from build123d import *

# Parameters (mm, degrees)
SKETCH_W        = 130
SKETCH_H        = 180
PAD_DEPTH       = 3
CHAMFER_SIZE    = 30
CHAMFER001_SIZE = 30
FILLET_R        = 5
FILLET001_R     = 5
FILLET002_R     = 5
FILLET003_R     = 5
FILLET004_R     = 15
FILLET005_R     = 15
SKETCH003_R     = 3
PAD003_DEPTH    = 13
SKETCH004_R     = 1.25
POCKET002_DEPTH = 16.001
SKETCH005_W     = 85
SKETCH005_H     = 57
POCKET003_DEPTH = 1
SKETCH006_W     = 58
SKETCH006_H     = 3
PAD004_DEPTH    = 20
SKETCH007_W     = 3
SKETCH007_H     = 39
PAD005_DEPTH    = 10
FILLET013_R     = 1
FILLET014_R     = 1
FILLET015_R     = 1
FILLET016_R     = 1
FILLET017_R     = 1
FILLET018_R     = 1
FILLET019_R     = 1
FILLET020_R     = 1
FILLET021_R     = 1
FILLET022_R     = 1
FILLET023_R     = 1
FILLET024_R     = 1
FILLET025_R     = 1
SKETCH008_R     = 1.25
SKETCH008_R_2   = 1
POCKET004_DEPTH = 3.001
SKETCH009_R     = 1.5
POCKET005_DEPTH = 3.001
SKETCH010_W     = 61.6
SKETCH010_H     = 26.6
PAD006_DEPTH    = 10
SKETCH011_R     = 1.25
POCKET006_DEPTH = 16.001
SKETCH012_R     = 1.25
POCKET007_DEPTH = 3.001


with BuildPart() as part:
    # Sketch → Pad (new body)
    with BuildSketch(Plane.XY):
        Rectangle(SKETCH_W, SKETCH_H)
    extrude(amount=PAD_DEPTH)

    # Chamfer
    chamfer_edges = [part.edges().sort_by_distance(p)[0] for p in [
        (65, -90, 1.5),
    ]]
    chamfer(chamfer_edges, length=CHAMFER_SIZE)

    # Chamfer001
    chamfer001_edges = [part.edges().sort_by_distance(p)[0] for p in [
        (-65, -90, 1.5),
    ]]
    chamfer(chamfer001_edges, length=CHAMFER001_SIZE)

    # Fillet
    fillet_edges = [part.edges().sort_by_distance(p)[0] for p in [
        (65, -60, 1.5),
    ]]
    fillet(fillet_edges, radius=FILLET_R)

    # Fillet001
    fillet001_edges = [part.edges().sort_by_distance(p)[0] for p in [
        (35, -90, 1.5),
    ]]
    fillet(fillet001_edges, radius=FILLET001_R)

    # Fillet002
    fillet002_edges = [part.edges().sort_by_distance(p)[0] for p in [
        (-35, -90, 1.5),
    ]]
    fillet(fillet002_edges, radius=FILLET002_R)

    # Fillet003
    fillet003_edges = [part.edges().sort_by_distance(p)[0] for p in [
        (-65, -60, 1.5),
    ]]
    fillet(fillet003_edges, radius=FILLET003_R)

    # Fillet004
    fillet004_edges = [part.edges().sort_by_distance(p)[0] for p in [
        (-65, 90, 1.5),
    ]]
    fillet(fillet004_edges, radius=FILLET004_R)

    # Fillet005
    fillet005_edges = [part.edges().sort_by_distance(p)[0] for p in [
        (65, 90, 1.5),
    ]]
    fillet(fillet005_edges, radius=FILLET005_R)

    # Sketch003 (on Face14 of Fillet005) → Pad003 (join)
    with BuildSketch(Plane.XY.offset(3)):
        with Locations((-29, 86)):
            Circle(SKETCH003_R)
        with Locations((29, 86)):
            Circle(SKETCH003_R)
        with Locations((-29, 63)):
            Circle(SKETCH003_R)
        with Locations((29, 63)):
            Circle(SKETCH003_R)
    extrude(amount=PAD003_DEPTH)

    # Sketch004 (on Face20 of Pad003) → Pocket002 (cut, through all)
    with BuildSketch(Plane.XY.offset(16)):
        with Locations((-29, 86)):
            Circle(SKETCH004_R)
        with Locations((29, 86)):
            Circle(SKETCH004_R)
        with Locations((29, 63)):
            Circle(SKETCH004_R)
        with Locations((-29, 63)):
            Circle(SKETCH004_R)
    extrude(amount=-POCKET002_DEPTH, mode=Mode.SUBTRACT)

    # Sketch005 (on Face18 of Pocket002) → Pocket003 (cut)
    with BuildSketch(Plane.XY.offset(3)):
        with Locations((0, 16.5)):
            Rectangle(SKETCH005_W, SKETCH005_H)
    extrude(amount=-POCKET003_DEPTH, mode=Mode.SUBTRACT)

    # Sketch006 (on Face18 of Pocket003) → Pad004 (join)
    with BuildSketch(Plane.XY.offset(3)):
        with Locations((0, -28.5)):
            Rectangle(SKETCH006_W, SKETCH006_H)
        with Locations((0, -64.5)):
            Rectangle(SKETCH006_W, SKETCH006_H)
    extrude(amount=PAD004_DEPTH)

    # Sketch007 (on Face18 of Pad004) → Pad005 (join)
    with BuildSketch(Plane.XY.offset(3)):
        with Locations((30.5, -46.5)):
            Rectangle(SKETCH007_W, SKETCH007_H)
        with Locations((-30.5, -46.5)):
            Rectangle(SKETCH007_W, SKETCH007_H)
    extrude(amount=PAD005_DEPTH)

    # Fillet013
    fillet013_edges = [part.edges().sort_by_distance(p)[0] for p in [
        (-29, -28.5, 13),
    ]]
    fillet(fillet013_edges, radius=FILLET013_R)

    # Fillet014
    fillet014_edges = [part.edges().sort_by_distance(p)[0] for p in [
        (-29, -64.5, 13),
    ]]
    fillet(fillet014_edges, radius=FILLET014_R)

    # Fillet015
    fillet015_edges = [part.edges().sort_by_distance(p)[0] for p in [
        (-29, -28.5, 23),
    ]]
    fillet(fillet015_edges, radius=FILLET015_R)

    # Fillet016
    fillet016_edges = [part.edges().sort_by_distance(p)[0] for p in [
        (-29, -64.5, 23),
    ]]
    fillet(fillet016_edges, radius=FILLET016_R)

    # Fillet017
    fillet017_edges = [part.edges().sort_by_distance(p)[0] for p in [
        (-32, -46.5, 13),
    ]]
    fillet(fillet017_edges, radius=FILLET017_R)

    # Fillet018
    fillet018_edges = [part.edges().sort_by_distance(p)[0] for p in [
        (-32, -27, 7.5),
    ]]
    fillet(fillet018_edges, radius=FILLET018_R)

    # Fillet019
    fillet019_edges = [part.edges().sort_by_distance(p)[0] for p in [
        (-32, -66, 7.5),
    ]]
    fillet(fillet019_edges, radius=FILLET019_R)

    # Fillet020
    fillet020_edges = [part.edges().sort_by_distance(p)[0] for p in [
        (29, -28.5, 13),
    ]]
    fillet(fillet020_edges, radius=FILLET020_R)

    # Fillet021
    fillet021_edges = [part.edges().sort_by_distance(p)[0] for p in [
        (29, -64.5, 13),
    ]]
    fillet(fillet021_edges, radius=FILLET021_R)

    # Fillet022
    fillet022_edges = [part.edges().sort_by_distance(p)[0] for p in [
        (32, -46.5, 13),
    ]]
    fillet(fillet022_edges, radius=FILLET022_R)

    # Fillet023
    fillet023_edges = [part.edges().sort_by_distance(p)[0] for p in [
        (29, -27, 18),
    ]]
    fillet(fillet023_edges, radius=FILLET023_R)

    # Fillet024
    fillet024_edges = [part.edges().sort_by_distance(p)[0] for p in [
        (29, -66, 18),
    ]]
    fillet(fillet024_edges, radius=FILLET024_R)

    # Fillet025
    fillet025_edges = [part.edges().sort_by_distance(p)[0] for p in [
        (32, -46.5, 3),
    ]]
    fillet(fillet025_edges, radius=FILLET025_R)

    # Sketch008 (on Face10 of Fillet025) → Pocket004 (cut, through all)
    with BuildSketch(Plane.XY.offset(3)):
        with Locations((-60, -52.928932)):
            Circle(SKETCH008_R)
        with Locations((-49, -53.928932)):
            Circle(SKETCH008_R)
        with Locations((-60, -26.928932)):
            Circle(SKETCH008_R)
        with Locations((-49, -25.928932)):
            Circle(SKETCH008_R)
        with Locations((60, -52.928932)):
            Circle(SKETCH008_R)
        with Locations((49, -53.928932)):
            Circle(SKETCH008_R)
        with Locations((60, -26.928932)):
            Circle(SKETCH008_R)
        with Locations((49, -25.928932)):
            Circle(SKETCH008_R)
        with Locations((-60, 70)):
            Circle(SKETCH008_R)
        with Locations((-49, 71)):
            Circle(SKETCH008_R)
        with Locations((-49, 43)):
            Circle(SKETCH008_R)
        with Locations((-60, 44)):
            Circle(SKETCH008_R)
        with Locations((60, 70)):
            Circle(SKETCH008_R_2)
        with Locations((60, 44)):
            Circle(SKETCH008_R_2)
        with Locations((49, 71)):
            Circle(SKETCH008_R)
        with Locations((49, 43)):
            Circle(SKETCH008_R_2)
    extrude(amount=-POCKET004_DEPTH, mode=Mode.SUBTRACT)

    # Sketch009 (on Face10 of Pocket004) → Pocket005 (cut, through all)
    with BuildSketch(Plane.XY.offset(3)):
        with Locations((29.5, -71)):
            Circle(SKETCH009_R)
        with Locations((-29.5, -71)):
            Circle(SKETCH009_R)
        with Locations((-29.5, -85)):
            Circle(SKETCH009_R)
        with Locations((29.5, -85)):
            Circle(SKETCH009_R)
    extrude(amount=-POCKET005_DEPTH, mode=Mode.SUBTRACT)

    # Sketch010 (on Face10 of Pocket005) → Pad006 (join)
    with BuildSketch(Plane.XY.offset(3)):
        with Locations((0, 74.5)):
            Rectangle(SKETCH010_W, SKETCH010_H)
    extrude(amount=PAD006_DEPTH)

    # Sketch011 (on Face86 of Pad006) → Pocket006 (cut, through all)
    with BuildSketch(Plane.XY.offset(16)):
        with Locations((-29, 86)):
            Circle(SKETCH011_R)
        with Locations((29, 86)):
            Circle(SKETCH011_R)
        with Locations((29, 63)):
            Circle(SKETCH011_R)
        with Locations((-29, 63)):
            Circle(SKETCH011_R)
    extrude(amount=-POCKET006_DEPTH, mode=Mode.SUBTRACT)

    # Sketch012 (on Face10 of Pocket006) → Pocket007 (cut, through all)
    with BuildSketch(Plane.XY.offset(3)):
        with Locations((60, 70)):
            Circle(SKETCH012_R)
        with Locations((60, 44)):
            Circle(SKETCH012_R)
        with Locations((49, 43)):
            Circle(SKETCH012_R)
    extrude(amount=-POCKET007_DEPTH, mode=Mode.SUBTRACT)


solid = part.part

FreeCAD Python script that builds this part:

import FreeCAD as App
import Part
import Sketcher

V = App.Vector


def edges_at(feature, points):
    """Names of the edges that pass closest to the given points."""
    edges = feature.Shape.Edges
    near = lambda p: min(range(len(edges)), key=lambda i: edges[i].distToShape(Part.Vertex(*p))[0])
    return sorted({f"Edge{near(p) + 1}" for p in points})


def add_polygon(sketch, points):
    """Adds a closed chain of lines whose ends are joined by coincident constraints."""
    first, n = sketch.GeometryCount, len(points)
    for a, b in zip(points, points[1:] + points[:1]):
        sketch.addGeometry(Part.LineSegment(App.Vector(*a, 0), App.Vector(*b, 0)), False)
    for i in range(n):
        sketch.addConstraint(Sketcher.Constraint("Coincident", first + i, 2, first + (i + 1) % n, 1))

doc = App.newDocument("Part")
body = doc.addObject("PartDesign::Body", "Body")

# Sketch on XY plane
sketch1 = body.newObject("Sketcher::SketchObject", "Sketch")
sketch1.AttachmentSupport = (doc.getObject("XY_Plane"), [""])
sketch1.MapMode = "FlatFace"
add_polygon(sketch1, [(-65, 90), (-65, -90), (65, -90), (65, 90)])  # lines 0-3
sketch1.addConstraint([
    Sketcher.Constraint("Vertical", 0),
    Sketcher.Constraint("Horizontal", 1),
    Sketcher.Constraint("Vertical", 2),
    Sketcher.Constraint("Horizontal", 3),
    Sketcher.Constraint("Symmetric", 0, 2, 2, 2, -1, 1),
    Sketcher.Constraint("DistanceX", 1, 1, 1, 2, 130.0),
    Sketcher.Constraint("DistanceY", 0, 2, 0, 1, 180.0),
])
pad1 = body.newObject("PartDesign::Pad", "Pad")
pad1.Profile = sketch1
pad1.Length = 3
doc.recompute()

chamfer = body.newObject("PartDesign::Chamfer", "Chamfer")
chamfer.Base = (pad1, edges_at(pad1, [(65, -90, 1.5)]))
chamfer.Size = 30
doc.recompute()

chamfer2 = body.newObject("PartDesign::Chamfer", "Chamfer001")
chamfer2.Base = (chamfer, edges_at(chamfer, [(-65, -90, 1.5)]))
chamfer2.Size = 30
doc.recompute()

fillet = body.newObject("PartDesign::Fillet", "Fillet")
fillet.Base = (chamfer2, edges_at(chamfer2, [(65, -60, 1.5)]))
fillet.Radius = 5
doc.recompute()

fillet2 = body.newObject("PartDesign::Fillet", "Fillet001")
fillet2.Base = (fillet, edges_at(fillet, [(35, -90, 1.5)]))
fillet2.Radius = 5
doc.recompute()

fillet3 = body.newObject("PartDesign::Fillet", "Fillet002")
fillet3.Base = (fillet2, edges_at(fillet2, [(-35, -90, 1.5)]))
fillet3.Radius = 5
doc.recompute()

fillet4 = body.newObject("PartDesign::Fillet", "Fillet003")
fillet4.Base = (fillet3, edges_at(fillet3, [(-65, -60, 1.5)]))
fillet4.Radius = 5
doc.recompute()

fillet5 = body.newObject("PartDesign::Fillet", "Fillet004")
fillet5.Base = (fillet4, edges_at(fillet4, [(-65, 90, 1.5)]))
fillet5.Radius = 15
doc.recompute()

fillet6 = body.newObject("PartDesign::Fillet", "Fillet005")
fillet6.Base = (fillet5, edges_at(fillet5, [(65, 90, 1.5)]))
fillet6.Radius = 15

# Sketch on XY plane
sketch2 = body.newObject("Sketcher::SketchObject", "Sketch001")
sketch2.AttachmentSupport = (doc.getObject("XY_Plane"), [""])
sketch2.MapMode = "FlatFace"
sketch2.AttachmentOffset = App.Placement(V(0, 0, 3), App.Rotation())
sketch2.addGeometry([
    Part.Circle(V(-29, 86, 0), V(0, 0, 1), 3),
    Part.Circle(V(29, 86, 0), V(0, 0, 1), 3),
    Part.Circle(V(-29, 63, 0), V(0, 0, 1), 3),
    Part.Circle(V(29, 63, 0), V(0, 0, 1), 3),
], False)
sketch2.addConstraint([
    Sketcher.Constraint("Equal", 0, 1),
    Sketcher.Constraint("Equal", 1, 2),
    Sketcher.Constraint("Equal", 2, 3),
    Sketcher.Constraint("Symmetric", 0, 3, 1, 3, -2),
    Sketcher.Constraint("Symmetric", 2, 3, 3, 3, -2),
    Sketcher.Constraint("Vertical", 0, 3, 2, 3),
    Sketcher.Constraint("Diameter", 0, 6.0),
    Sketcher.Constraint("DistanceX", 0, 3, -1, 1, 29.0),
    Sketcher.Constraint("DistanceY", -1, 1, 0, 3, 86.0),
    Sketcher.Constraint("DistanceY", -1, 1, 2, 3, 63.0),
])
pad2 = body.newObject("PartDesign::Pad", "Pad001")
pad2.Profile = sketch2
pad2.Length = 13

# Sketch on XY plane
sketch3 = body.newObject("Sketcher::SketchObject", "Sketch002")
sketch3.AttachmentSupport = (doc.getObject("XY_Plane"), [""])
sketch3.MapMode = "FlatFace"
sketch3.AttachmentOffset = App.Placement(V(0, 0, 16), App.Rotation())
sketch3.addGeometry([
    Part.Circle(V(-29, 86, 0), V(0, 0, 1), 1.2),
    Part.Circle(V(29, 86, 0), V(0, 0, 1), 1.2),
    Part.Circle(V(29, 63, 0), V(0, 0, 1), 1.2),
    Part.Circle(V(-29, 63, 0), V(0, 0, 1), 1.2),
], False)
sketch3.addConstraint([
    Sketcher.Constraint("Equal", 0, 1),
    Sketcher.Constraint("Equal", 1, 2),
    Sketcher.Constraint("Equal", 2, 3),
    Sketcher.Constraint("Symmetric", 0, 3, 1, 3, -2),
    Sketcher.Constraint("Symmetric", 2, 3, 3, 3, -2),
    Sketcher.Constraint("Vertical", 1, 3, 2, 3),
    Sketcher.Constraint("Diameter", 0, 2.5),
    Sketcher.Constraint("DistanceX", 0, 3, -1, 1, 29.0),
    Sketcher.Constraint("DistanceY", -1, 1, 0, 3, 86.0),
    Sketcher.Constraint("DistanceY", -1, 1, 2, 3, 63.0),
])
pocket1 = body.newObject("PartDesign::Pocket", "Pocket")
pocket1.Profile = sketch3
pocket1.Type = "ThroughAll"

# Sketch on XY plane
sketch4 = body.newObject("Sketcher::SketchObject", "Sketch003")
sketch4.AttachmentSupport = (doc.getObject("XY_Plane"), [""])
sketch4.MapMode = "FlatFace"
sketch4.AttachmentOffset = App.Placement(V(0, 0, 3), App.Rotation())
add_polygon(sketch4, [(-42, 45), (-42, -12), (42, -12), (42, 45)])  # lines 0-3
sketch4.addConstraint([
    Sketcher.Constraint("Vertical", 0),
    Sketcher.Constraint("Horizontal", 1),
    Sketcher.Constraint("Vertical", 2),
    Sketcher.Constraint("Horizontal", 3),
    Sketcher.Constraint("DistanceX", 1, 1, 1, 2, 85.0),
    Sketcher.Constraint("DistanceY", 0, 2, 0, 1, 57.0),
    Sketcher.Constraint("DistanceY", 0, 2, -1, 1, 12.0),
    Sketcher.Constraint("DistanceX", 0, 2, -1, 1, 42.5),
])
pocket2 = body.newObject("PartDesign::Pocket", "Pocket001")
pocket2.Profile = sketch4
pocket2.Length = 1

# Sketch on XY plane
sketch5 = body.newObject("Sketcher::SketchObject", "Sketch004")
sketch5.AttachmentSupport = (doc.getObject("XY_Plane"), [""])
sketch5.MapMode = "FlatFace"
sketch5.AttachmentOffset = App.Placement(V(0, 0, 3), App.Rotation())
add_polygon(sketch5, [(-29, -27), (-29, -30), (29, -30), (29, -27)])  # lines 0-3
add_polygon(sketch5, [(-29, -63), (-29, -66), (29, -66), (29, -63)])  # lines 4-7
sketch5.addConstraint([
    Sketcher.Constraint("Vertical", 0),
    Sketcher.Constraint("Horizontal", 1),
    Sketcher.Constraint("Vertical", 2),
    Sketcher.Constraint("Horizontal", 3),
    Sketcher.Constraint("Vertical", 4),
    Sketcher.Constraint("Horizontal", 5),
    Sketcher.Constraint("Vertical", 6),
    Sketcher.Constraint("Horizontal", 7),
    Sketcher.Constraint("Vertical", 3, 2, 4, 2),
    Sketcher.Constraint("Vertical", 2, 2, 5, 2),
    Sketcher.Constraint("Equal", 2, 4),
    Sketcher.Constraint("DistanceX", 1, 1, 1, 2, 58.0),
    Sketcher.Constraint("DistanceY", 0, 2, 0, 1, 3.0),
    Sketcher.Constraint("DistanceX", 0, 2, -1, 1, 29.0),
    Sketcher.Constraint("DistanceY", 0, 2, -1, 1, 30.0),
    Sketcher.Constraint("DistanceY", 4, 2, -1, 1, 66.0),
])
pad3 = body.newObject("PartDesign::Pad", "Pad002")
pad3.Profile = sketch5
pad3.Length = 20

# Sketch on XY plane
sketch6 = body.newObject("Sketcher::SketchObject", "Sketch005")
sketch6.AttachmentSupport = (doc.getObject("XY_Plane"), [""])
sketch6.MapMode = "FlatFace"
sketch6.AttachmentOffset = App.Placement(V(0, 0, 3), App.Rotation())
add_polygon(sketch6, [(29, -27), (29, -66), (32, -66), (32, -27)])  # lines 0-3
add_polygon(sketch6, [(-32, -27), (-32, -66), (-29, -66), (-29, -27)])  # lines 4-7
sketch6.addConstraint([
    Sketcher.Constraint("Vertical", 0),
    Sketcher.Constraint("Horizontal", 1),
    Sketcher.Constraint("Vertical", 2),
    Sketcher.Constraint("Horizontal", 3),
    Sketcher.Constraint("Vertical", 4),
    Sketcher.Constraint("Horizontal", 5),
    Sketcher.Constraint("Vertical", 6),
    Sketcher.Constraint("Horizontal", 7),
    Sketcher.Constraint("Symmetric", 1, 2, 4, 2, -2),
    Sketcher.Constraint("Symmetric", 3, 2, 6, 2, -2),
    Sketcher.Constraint("DistanceX", 1, 1, 1, 2, 3.0),
    Sketcher.Constraint("DistanceY", 0, 2, 0, 1, 39.0),
    Sketcher.Constraint("DistanceX", -1, 1, 0, 2, 29.0),
    Sketcher.Constraint("DistanceY", 0, 2, -1, 1, 66.0),
])
pad4 = body.newObject("PartDesign::Pad", "Pad003")
pad4.Profile = sketch6
pad4.Length = 10
doc.recompute()

fillet7 = body.newObject("PartDesign::Fillet", "Fillet006")
fillet7.Base = (pad4, edges_at(pad4, [(-29, -28.5, 13)]))
fillet7.Radius = 1
doc.recompute()

fillet8 = body.newObject("PartDesign::Fillet", "Fillet007")
fillet8.Base = (fillet7, edges_at(fillet7, [(-29, -64.5, 13)]))
fillet8.Radius = 1
doc.recompute()

fillet9 = body.newObject("PartDesign::Fillet", "Fillet008")
fillet9.Base = (fillet8, edges_at(fillet8, [(-29, -28.5, 23)]))
fillet9.Radius = 1
doc.recompute()

fillet10 = body.newObject("PartDesign::Fillet", "Fillet009")
fillet10.Base = (fillet9, edges_at(fillet9, [(-29, -64.5, 23)]))
fillet10.Radius = 1
doc.recompute()

fillet11 = body.newObject("PartDesign::Fillet", "Fillet010")
fillet11.Base = (fillet10, edges_at(fillet10, [(-32, -46.5, 13)]))
fillet11.Radius = 1
doc.recompute()

fillet12 = body.newObject("PartDesign::Fillet", "Fillet011")
fillet12.Base = (fillet11, edges_at(fillet11, [(-32, -27, 7.5)]))
fillet12.Radius = 1
doc.recompute()

fillet13 = body.newObject("PartDesign::Fillet", "Fillet012")
fillet13.Base = (fillet12, edges_at(fillet12, [(-32, -66, 7.5)]))
fillet13.Radius = 1
doc.recompute()

fillet14 = body.newObject("PartDesign::Fillet", "Fillet013")
fillet14.Base = (fillet13, edges_at(fillet13, [(29, -28.5, 13)]))
fillet14.Radius = 1
doc.recompute()

fillet15 = body.newObject("PartDesign::Fillet", "Fillet014")
fillet15.Base = (fillet14, edges_at(fillet14, [(29, -64.5, 13)]))
fillet15.Radius = 1
doc.recompute()

fillet16 = body.newObject("PartDesign::Fillet", "Fillet015")
fillet16.Base = (fillet15, edges_at(fillet15, [(32, -46.5, 13)]))
fillet16.Radius = 1
doc.recompute()

fillet17 = body.newObject("PartDesign::Fillet", "Fillet016")
fillet17.Base = (fillet16, edges_at(fillet16, [(29, -27, 18)]))
fillet17.Radius = 1
doc.recompute()

fillet18 = body.newObject("PartDesign::Fillet", "Fillet017")
fillet18.Base = (fillet17, edges_at(fillet17, [(29, -66, 18)]))
fillet18.Radius = 1
doc.recompute()

fillet19 = body.newObject("PartDesign::Fillet", "Fillet018")
fillet19.Base = (fillet18, edges_at(fillet18, [(32, -46.5, 3)]))
fillet19.Radius = 1

# Sketch on XY plane
sketch7 = body.newObject("Sketcher::SketchObject", "Sketch006")
sketch7.AttachmentSupport = (doc.getObject("XY_Plane"), [""])
sketch7.MapMode = "FlatFace"
sketch7.AttachmentOffset = App.Placement(V(0, 0, 3), App.Rotation())
sketch7.addGeometry([
    Part.Circle(V(-60, -52.9, 0), V(0, 0, 1), 1.2),  # 0
    Part.Circle(V(-49, -53.9, 0), V(0, 0, 1), 1.2),  # 1
    Part.Circle(V(-60, -26.9, 0), V(0, 0, 1), 1.2),  # 2
    Part.Circle(V(-49, -25.9, 0), V(0, 0, 1), 1.2),  # 3
    Part.Circle(V(60, -52.9, 0), V(0, 0, 1), 1.2),  # 4
    Part.Circle(V(49, -53.9, 0), V(0, 0, 1), 1.2),  # 5
    Part.Circle(V(60, -26.9, 0), V(0, 0, 1), 1.2),  # 6
    Part.Circle(V(49, -25.9, 0), V(0, 0, 1), 1.2),  # 7
    Part.Circle(V(-60, 70, 0), V(0, 0, 1), 1.2),  # 8
    Part.Circle(V(-49, 71, 0), V(0, 0, 1), 1.2),  # 9
    Part.Circle(V(-49, 43, 0), V(0, 0, 1), 1.2),  # 10
    Part.Circle(V(-60, 44, 0), V(0, 0, 1), 1.2),  # 11
    Part.Circle(V(60, 70, 0), V(0, 0, 1), 1),  # 12
    Part.Circle(V(60, 44, 0), V(0, 0, 1), 1),  # 13
    Part.Circle(V(49, 71, 0), V(0, 0, 1), 1.2),  # 14
    Part.Circle(V(49, 43, 0), V(0, 0, 1), 1),  # 15
], False)
sketch7.addConstraint([
    Sketcher.Constraint("Equal", 0, 1),
    Sketcher.Constraint("Equal", 1, 2),
    Sketcher.Constraint("Equal", 2, 3),
    Sketcher.Constraint("Equal", 3, 4),
    Sketcher.Constraint("Equal", 4, 5),
    Sketcher.Constraint("Equal", 5, 6),
    Sketcher.Constraint("Equal", 6, 7),
    Sketcher.Constraint("Equal", 7, 8),
    Sketcher.Constraint("Equal", 8, 9),
    Sketcher.Constraint("Equal", 9, 10),
    Sketcher.Constraint("Equal", 10, 11),
    Sketcher.Constraint("Equal", 12, 13),
    Sketcher.Constraint("Equal", 11, 14),
    Sketcher.Constraint("Equal", 13, 15),
    Sketcher.Constraint("Symmetric", 0, 3, 4, 3, -2),
    Sketcher.Constraint("Symmetric", 1, 3, 5, 3, -2),
    Sketcher.Constraint("Symmetric", 2, 3, 6, 3, -2),
    Sketcher.Constraint("Symmetric", 3, 3, 7, 3, -2),
    Sketcher.Constraint("Symmetric", 8, 3, 12, 3, -2),
    Sketcher.Constraint("Symmetric", 11, 3, 13, 3, -2),
    Sketcher.Constraint("Symmetric", 9, 3, 14, 3, -2),
    Sketcher.Constraint("Symmetric", 10, 3, 15, 3, -2),
    Sketcher.Constraint("Vertical", 0, 3, 2, 3),
    Sketcher.Constraint("Vertical", 1, 3, 3, 3),
    Sketcher.Constraint("Vertical", 2, 3, 8, 3),
    Sketcher.Constraint("Vertical", 3, 3, 9, 3),
    Sketcher.Constraint("Vertical", 9, 3, 10, 3),
    Sketcher.Constraint("Vertical", 8, 3, 11, 3),
    Sketcher.Constraint("Diameter", 12, 2.0),
    Sketcher.Constraint("Diameter", 0, 2.5),
    Sketcher.Constraint("DistanceX", 0, 3, -1, 1, 60.0),
    Sketcher.Constraint("DistanceX", 1, 3, -1, 1, 49.0),
    Sketcher.Constraint("DistanceY", -1, 1, 8, 3, 70.0),
    Sketcher.Constraint("DistanceY", -1, 1, 9, 3, 71.0),
    Sketcher.Constraint("DistanceY", -1, 1, 10, 3, 43.0),
    Sketcher.Constraint("DistanceY", -1, 1, 11, 3, 44.0),
    Sketcher.Constraint("DistanceY", 1, 3, 0, 3, 1.0),
    Sketcher.Constraint("DistanceY", 0, 3, 2, 3, 26.0),
    Sketcher.Constraint("DistanceY", 2, 3, 3, 3, 1.0),
    Sketcher.Constraint("DistanceY", 2, 3, -1, 1, 26.928932),
])
pocket3 = body.newObject("PartDesign::Pocket", "Pocket002")
pocket3.Profile = sketch7
pocket3.Type = "ThroughAll"

# Sketch on XY plane
sketch8 = body.newObject("Sketcher::SketchObject", "Sketch007")
sketch8.AttachmentSupport = (doc.getObject("XY_Plane"), [""])
sketch8.MapMode = "FlatFace"
sketch8.AttachmentOffset = App.Placement(V(0, 0, 3), App.Rotation())
sketch8.addGeometry([
    Part.Circle(V(29.5, -71, 0), V(0, 0, 1), 1.5),
    Part.Circle(V(-29.5, -71, 0), V(0, 0, 1), 1.5),
    Part.Circle(V(-29.5, -85, 0), V(0, 0, 1), 1.5),
    Part.Circle(V(29.5, -85, 0), V(0, 0, 1), 1.5),
], False)
sketch8.addConstraint([
    Sketcher.Constraint("Equal", 0, 1),
    Sketcher.Constraint("Equal", 1, 2),
    Sketcher.Constraint("Equal", 2, 3),
    Sketcher.Constraint("Symmetric", 0, 3, 1, 3, -2),
    Sketcher.Constraint("Symmetric", 2, 3, 3, 3, -2),
    Sketcher.Constraint("Vertical", 1, 3, 2, 3),
    Sketcher.Constraint("Diameter", 0, 3.0),
    Sketcher.Constraint("DistanceY", 0, 3, -1, 1, 71.0),
    Sketcher.Constraint("DistanceY", 2, 3, -1, 1, 85.0),
    Sketcher.Constraint("DistanceX", 1, 3, 0, 3, 59.0),
])
pocket4 = body.newObject("PartDesign::Pocket", "Pocket003")
pocket4.Profile = sketch8
pocket4.Type = "ThroughAll"

# Sketch on XY plane
sketch9 = body.newObject("Sketcher::SketchObject", "Sketch008")
sketch9.AttachmentSupport = (doc.getObject("XY_Plane"), [""])
sketch9.MapMode = "FlatFace"
sketch9.AttachmentOffset = App.Placement(V(0, 0, 3), App.Rotation())
add_polygon(sketch9, [(-31, 88), (-31, 61), (31, 61), (31, 88)])  # lines 0-3
sketch9.addConstraint([
    Sketcher.Constraint("Vertical", 0),
    Sketcher.Constraint("Horizontal", 1),
    Sketcher.Constraint("Vertical", 2),
    Sketcher.Constraint("Horizontal", 3),
    Sketcher.Constraint("DistanceX", 1, 1, 1, 2, 61.6),
    Sketcher.Constraint("DistanceY", 0, 2, 0, 1, 26.6),
    Sketcher.Constraint("DistanceX", 0, 2, -1, 1, 30.8),
    Sketcher.Constraint("DistanceY", -1, 1, 0, 2, 61.2),
])
pad5 = body.newObject("PartDesign::Pad", "Pad004")
pad5.Profile = sketch9
pad5.Length = 10

# Sketch on XY plane
sketch10 = body.newObject("Sketcher::SketchObject", "Sketch009")
sketch10.AttachmentSupport = (doc.getObject("XY_Plane"), [""])
sketch10.MapMode = "FlatFace"
sketch10.AttachmentOffset = App.Placement(V(0, 0, 16), App.Rotation())
sketch10.addGeometry([
    Part.Circle(V(-29, 86, 0), V(0, 0, 1), 1.2),
    Part.Circle(V(29, 86, 0), V(0, 0, 1), 1.2),
    Part.Circle(V(29, 63, 0), V(0, 0, 1), 1.2),
    Part.Circle(V(-29, 63, 0), V(0, 0, 1), 1.2),
], False)
sketch10.addConstraint([
    Sketcher.Constraint("Equal", 0, 1),
    Sketcher.Constraint("Equal", 1, 2),
    Sketcher.Constraint("Equal", 2, 3),
    Sketcher.Constraint("Symmetric", 0, 3, 1, 3, -2),
    Sketcher.Constraint("Symmetric", 2, 3, 3, 3, -2),
    Sketcher.Constraint("Vertical", 1, 3, 2, 3),
    Sketcher.Constraint("Diameter", 0, 2.5),
    Sketcher.Constraint("DistanceX", 0, 3, -1, 1, 29.0),
    Sketcher.Constraint("DistanceY", -1, 1, 0, 3, 86.0),
    Sketcher.Constraint("DistanceY", -1, 1, 2, 3, 63.0),
])
pocket5 = body.newObject("PartDesign::Pocket", "Pocket004")
pocket5.Profile = sketch10
pocket5.Type = "ThroughAll"

# Sketch on XY plane
sketch11 = body.newObject("Sketcher::SketchObject", "Sketch010")
sketch11.AttachmentSupport = (doc.getObject("XY_Plane"), [""])
sketch11.MapMode = "FlatFace"
sketch11.AttachmentOffset = App.Placement(V(0, 0, 3), App.Rotation())
sketch11.addGeometry([
    Part.Circle(V(60, 70, 0), V(0, 0, 1), 1.2),
    Part.Circle(V(60, 44, 0), V(0, 0, 1), 1.2),
    Part.Circle(V(49, 43, 0), V(0, 0, 1), 1.2),
], False)
sketch11.addConstraint([
    Sketcher.Constraint("Equal", 0, 1),
    Sketcher.Constraint("Equal", 1, 2),
    Sketcher.Constraint("Vertical", 0, 3, 1, 3),
    Sketcher.Constraint("Diameter", 0, 2.5),
    Sketcher.Constraint("DistanceX", -1, 1, 0, 3, 60.0),
    Sketcher.Constraint("DistanceY", -1, 1, 0, 3, 70.0),
    Sketcher.Constraint("DistanceY", -1, 1, 1, 3, 44.0),
    Sketcher.Constraint("DistanceX", -1, 1, 2, 3, 49.0),
    Sketcher.Constraint("DistanceY", -1, 1, 2, 3, 43.0),
])
pocket6 = body.newObject("PartDesign::Pocket", "Pocket005")
pocket6.Profile = sketch11
pocket6.Type = "ThroughAll"

doc.recompute()
